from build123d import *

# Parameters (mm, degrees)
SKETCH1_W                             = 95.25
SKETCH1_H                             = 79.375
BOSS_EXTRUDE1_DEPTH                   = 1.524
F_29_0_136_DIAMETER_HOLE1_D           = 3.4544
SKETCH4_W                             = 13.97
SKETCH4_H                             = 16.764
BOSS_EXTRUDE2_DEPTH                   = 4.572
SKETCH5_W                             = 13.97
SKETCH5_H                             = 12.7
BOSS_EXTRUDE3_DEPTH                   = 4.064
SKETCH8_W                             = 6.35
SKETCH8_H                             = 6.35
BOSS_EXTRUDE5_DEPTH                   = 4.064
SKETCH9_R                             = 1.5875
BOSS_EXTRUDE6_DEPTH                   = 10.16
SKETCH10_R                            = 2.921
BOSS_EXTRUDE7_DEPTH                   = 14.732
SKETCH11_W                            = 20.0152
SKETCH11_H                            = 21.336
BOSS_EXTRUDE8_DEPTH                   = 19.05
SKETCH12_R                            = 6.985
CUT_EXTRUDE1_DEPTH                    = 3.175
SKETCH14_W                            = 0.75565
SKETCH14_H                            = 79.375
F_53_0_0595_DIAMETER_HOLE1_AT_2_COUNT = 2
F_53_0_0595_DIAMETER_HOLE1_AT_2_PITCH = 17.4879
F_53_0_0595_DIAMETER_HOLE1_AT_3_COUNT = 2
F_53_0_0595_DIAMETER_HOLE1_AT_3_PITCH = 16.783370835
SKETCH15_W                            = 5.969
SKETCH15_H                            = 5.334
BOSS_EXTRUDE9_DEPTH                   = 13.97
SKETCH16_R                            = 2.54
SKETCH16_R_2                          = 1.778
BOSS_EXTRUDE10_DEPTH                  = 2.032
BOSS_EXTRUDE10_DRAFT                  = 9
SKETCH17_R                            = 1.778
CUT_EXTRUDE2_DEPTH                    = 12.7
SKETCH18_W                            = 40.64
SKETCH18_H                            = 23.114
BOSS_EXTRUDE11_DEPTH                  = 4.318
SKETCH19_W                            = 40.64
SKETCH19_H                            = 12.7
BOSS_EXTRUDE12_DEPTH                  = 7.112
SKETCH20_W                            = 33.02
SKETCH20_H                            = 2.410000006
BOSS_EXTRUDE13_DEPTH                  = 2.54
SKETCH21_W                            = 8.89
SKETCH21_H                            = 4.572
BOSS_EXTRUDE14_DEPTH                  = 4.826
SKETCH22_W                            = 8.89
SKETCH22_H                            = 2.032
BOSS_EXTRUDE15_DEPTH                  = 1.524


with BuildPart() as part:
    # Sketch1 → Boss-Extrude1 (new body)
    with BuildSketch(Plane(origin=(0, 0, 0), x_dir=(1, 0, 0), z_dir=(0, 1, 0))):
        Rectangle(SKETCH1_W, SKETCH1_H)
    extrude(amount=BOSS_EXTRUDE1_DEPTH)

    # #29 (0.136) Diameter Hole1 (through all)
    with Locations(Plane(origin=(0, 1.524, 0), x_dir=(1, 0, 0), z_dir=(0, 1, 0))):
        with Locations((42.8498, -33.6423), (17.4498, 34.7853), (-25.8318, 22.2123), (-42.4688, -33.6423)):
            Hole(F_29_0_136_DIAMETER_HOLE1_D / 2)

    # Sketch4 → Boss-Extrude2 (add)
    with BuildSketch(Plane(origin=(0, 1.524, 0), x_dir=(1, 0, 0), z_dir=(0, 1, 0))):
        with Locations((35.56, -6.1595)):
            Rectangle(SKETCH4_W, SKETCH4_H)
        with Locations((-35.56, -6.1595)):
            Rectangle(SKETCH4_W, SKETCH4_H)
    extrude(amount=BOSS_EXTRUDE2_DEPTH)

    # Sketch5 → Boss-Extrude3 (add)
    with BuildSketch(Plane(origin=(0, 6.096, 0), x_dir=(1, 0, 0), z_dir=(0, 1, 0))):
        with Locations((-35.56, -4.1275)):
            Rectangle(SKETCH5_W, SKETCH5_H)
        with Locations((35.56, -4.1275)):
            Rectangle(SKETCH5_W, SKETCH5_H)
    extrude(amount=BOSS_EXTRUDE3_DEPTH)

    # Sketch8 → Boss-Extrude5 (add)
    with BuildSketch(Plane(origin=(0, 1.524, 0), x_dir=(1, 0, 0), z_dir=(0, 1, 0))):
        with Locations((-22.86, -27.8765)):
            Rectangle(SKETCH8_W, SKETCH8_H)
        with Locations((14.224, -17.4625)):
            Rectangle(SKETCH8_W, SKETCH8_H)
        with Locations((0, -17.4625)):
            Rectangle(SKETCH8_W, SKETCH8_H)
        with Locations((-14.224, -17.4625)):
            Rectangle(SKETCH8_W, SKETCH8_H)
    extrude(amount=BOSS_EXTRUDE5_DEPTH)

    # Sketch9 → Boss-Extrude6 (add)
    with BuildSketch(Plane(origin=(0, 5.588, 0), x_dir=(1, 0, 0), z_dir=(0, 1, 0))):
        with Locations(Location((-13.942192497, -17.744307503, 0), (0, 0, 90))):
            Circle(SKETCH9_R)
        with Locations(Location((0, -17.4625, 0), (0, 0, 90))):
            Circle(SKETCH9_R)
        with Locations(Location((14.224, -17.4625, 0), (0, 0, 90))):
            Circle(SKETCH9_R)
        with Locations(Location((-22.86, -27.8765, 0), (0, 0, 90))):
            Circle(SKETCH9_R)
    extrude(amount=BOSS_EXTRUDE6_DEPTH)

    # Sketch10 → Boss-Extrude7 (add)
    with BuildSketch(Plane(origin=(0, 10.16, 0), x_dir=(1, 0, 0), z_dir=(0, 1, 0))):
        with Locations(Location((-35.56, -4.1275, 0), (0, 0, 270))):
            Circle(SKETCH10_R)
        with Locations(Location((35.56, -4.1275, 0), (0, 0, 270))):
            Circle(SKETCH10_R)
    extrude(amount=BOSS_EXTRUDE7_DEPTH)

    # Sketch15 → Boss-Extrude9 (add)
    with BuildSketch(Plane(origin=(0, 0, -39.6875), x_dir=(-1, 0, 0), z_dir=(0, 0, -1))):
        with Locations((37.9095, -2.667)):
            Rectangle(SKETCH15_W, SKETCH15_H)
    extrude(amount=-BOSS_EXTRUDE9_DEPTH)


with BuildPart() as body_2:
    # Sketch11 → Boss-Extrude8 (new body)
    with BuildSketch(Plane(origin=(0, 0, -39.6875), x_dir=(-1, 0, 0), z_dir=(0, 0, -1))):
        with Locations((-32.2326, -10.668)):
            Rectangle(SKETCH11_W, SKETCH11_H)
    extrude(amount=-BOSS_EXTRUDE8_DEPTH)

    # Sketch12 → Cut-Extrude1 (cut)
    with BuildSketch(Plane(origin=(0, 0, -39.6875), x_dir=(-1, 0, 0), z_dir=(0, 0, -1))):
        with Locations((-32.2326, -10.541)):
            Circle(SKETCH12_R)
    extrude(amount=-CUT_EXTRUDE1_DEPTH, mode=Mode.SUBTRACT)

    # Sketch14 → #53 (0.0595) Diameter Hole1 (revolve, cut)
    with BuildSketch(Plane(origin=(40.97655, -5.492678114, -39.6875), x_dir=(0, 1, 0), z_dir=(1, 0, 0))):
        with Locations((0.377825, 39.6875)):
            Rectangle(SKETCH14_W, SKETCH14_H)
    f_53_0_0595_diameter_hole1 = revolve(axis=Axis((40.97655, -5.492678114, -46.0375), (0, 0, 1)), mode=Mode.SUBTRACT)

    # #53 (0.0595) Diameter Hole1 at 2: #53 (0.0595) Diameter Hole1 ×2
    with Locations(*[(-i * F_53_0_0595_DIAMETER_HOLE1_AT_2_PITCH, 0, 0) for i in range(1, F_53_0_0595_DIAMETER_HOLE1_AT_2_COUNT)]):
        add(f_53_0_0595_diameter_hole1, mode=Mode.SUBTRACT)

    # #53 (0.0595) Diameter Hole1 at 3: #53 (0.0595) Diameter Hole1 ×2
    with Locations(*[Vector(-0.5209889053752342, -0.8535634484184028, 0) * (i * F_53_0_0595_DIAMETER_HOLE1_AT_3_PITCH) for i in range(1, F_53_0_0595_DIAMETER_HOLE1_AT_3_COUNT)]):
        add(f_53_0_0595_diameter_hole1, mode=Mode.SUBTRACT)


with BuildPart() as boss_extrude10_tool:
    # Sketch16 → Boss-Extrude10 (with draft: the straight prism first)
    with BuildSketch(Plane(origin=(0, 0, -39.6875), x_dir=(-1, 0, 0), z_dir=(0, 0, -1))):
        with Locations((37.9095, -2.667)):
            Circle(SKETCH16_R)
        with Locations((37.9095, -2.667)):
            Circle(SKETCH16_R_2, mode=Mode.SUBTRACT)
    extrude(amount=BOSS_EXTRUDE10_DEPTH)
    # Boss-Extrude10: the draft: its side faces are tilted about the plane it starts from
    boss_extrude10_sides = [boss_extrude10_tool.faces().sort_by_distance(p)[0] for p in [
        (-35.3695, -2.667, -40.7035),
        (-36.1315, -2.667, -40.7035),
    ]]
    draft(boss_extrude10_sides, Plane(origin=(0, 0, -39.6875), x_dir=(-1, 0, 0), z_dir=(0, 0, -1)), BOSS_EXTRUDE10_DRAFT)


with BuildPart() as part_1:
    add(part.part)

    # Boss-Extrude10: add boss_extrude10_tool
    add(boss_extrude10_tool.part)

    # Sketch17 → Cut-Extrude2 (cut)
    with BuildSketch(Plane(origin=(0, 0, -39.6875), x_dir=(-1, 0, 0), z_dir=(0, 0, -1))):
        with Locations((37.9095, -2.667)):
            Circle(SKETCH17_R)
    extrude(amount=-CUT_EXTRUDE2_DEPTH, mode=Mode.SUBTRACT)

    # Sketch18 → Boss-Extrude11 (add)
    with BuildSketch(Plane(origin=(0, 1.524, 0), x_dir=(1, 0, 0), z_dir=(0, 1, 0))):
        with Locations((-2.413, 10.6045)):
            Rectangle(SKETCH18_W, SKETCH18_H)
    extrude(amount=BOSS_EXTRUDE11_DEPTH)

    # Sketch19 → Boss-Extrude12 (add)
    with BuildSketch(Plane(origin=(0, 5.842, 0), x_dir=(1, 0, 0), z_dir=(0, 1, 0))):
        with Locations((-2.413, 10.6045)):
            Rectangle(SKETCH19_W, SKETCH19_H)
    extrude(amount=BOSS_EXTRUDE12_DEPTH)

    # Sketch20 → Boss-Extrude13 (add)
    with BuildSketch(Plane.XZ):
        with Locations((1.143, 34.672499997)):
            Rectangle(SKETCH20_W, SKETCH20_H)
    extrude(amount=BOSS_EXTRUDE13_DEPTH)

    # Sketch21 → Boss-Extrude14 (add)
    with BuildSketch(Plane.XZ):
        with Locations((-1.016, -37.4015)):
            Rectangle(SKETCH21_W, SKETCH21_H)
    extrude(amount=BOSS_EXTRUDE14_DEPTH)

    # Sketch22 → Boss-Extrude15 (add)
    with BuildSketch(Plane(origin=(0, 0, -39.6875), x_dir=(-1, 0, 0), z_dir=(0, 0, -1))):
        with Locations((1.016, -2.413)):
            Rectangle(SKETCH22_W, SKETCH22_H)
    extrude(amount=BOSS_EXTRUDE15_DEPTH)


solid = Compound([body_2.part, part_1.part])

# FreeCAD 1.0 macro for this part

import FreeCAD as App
import Part
import Sketcher
from FreeCAD import Vector
Q = App.Units.Quantity


def faces_at(feature, points):
    """Names of the faces that lie closest to the given points."""
    faces = feature.Shape.Faces
    near = lambda p: min(range(len(faces)), key=lambda i: faces[i].distToShape(Part.Vertex(*p))[0])
    return sorted({f"Face{near(p) + 1}" for p in points})

doc = App.newDocument("Part")
body = doc.addObject("PartDesign::Body", "Body")

sketch1 = doc.addObject("Sketcher::SketchObject", "Sketch")
body.addObject(sketch1)
sketch1.AttachmentSupport = (doc.XZ_Plane, [""])
sketch1.MapMode = "FlatFace"
sketch1.addGeometry(Part.LineSegment(Vector(-47.625, -39.6875, 0), Vector(-47.625, 39.6875, 0)), False)
sketch1.addGeometry(Part.LineSegment(Vector(-47.625, 39.6875, 0), Vector(47.625, 39.6875, 0)), False)
sketch1.addGeometry(Part.LineSegment(Vector(47.625, 39.6875, 0), Vector(47.625, -39.6875, 0)), False)
sketch1.addGeometry(Part.LineSegment(Vector(47.625, -39.6875, 0), Vector(-47.625, -39.6875, 0)), False)
sketch1.addConstraint(Sketcher.Constraint("Coincident", 0, 2, 1, 1))
sketch1.addConstraint(Sketcher.Constraint("Coincident", 1, 2, 2, 1))
sketch1.addConstraint(Sketcher.Constraint("Coincident", 2, 2, 3, 1))
sketch1.addConstraint(Sketcher.Constraint("Coincident", 3, 2, 0, 1))
sketch1.addConstraint(Sketcher.Constraint("Vertical", 0))
sketch1.addConstraint(Sketcher.Constraint("Horizontal", 1))
sketch1.addConstraint(Sketcher.Constraint("Vertical", 2))
sketch1.addConstraint(Sketcher.Constraint("Horizontal", 3))
sketch1.addConstraint(Sketcher.Constraint("Symmetric", 0, 2, 2, 2, -1, 1))
sketch1.addConstraint(Sketcher.Constraint("DistanceX", 1, 1, 1, 2, Q("3.75 in")))
sketch1.addConstraint(Sketcher.Constraint("DistanceY", 0, 1, 0, 2, Q("3.125 in")))
pad1 = doc.addObject("PartDesign::Pad", "Pad")
body.addObject(pad1)
pad1.Profile = sketch1
pad1.Length = Q("0.06 in")
pad1.Reversed = True

sketch2 = doc.addObject("Sketcher::SketchObject", "Sketch001")
body.addObject(sketch2)
sketch2.AttachmentSupport = (doc.XZ_Plane, [""])
sketch2.MapMode = "FlatFace"
sketch2.AttachmentOffset = App.Placement(Vector(0, 0, -0.06 * 25.4), App.Rotation())
sketch2.addGeometry(Part.Circle(Vector(42.8498, 33.6423, 0), Vector(0, 0, 1), 1.7272), False)
sketch2.addGeometry(Part.Circle(Vector(17.4498, -34.7853, 0), Vector(0, 0, 1), 1.7272), False)
sketch2.addGeometry(Part.Circle(Vector(-25.8318, -22.2123, 0), Vector(0, 0, 1), 1.7272), False)
sketch2.addGeometry(Part.Circle(Vector(-42.4688, 33.6423, 0), Vector(0, 0, 1), 1.7272), False)
sketch2.addConstraint(Sketcher.Constraint("Equal", 0, 1))
sketch2.addConstraint(Sketcher.Constraint("Equal", 1, 2))
sketch2.addConstraint(Sketcher.Constraint("Equal", 2, 3))
sketch2.addConstraint(Sketcher.Constraint("Horizontal", 0, 3, 3, 3))
sketch2.addConstraint(Sketcher.Constraint("Diameter", 0, Q("0.136 in")))
sketch2.addConstraint(Sketcher.Constraint("DistanceX", 1, 3, 0, 3, Q("1 in")))
sketch2.addConstraint(Sketcher.Constraint("DistanceX", -1, 1, 0, 3, Q("1.687 in")))
sketch2.addConstraint(Sketcher.Constraint("DistanceX", 2, 3, -1, 1, Q("1.017 in")))
sketch2.addConstraint(Sketcher.Constraint("DistanceX", 3, 3, -1, 1, Q("1.672 in")))
sketch2.addConstraint(Sketcher.Constraint("DistanceY", 1, 3, 0, 3, Q("2.694 in")))
sketch2.addConstraint(Sketcher.Constraint("DistanceY", 1, 3, 2, 3, Q("0.495 in")))
sketch2.addConstraint(Sketcher.Constraint("DistanceY", -1, 1, 0, 3, Q("1.3245 in")))
doc.recompute()
hole = doc.addObject("PartDesign::Hole", "Hole")
body.addObject(hole)
hole.Profile = sketch2
hole.ThreadType = "None"
hole.Diameter = Q("0.136 in")
hole.DepthType = "ThroughAll"
hole.Reversed = True

sketch3 = doc.addObject("Sketcher::SketchObject", "Sketch002")
body.addObject(sketch3)
sketch3.AttachmentSupport = (doc.XZ_Plane, [""])
sketch3.MapMode = "FlatFace"
sketch3.AttachmentOffset = App.Placement(Vector(0, 0, -0.06 * 25.4), App.Rotation())
sketch3.addGeometry(Part.LineSegment(Vector(28.575, -2.2225, 0), Vector(28.575, 14.5415, 0)), False)
sketch3.addGeometry(Part.LineSegment(Vector(28.575, 14.5415, 0), Vector(42.545, 14.5415, 0)), False)
sketch3.addGeometry(Part.LineSegment(Vector(42.545, 14.5415, 0), Vector(42.545, -2.2225, 0)), False)
sketch3.addGeometry(Part.LineSegment(Vector(42.545, -2.2225, 0), Vector(28.575, -2.2225, 0)), False)
sketch3.addGeometry(Part.LineSegment(Vector(-42.545, -2.2225, 0), Vector(-42.545, 14.5415, 0)), False)
sketch3.addGeometry(Part.LineSegment(Vector(-42.545, 14.5415, 0), Vector(-28.575, 14.5415, 0)), False)
sketch3.addGeometry(Part.LineSegment(Vector(-28.575, 14.5415, 0), Vector(-28.575, -2.2225, 0)), False)
sketch3.addGeometry(Part.LineSegment(Vector(-28.575, -2.2225, 0), Vector(-42.545, -2.2225, 0)), False)
sketch3.addConstraint(Sketcher.Constraint("Coincident", 0, 2, 1, 1))
sketch3.addConstraint(Sketcher.Constraint("Coincident", 1, 2, 2, 1))
sketch3.addConstraint(Sketcher.Constraint("Coincident", 2, 2, 3, 1))
sketch3.addConstraint(Sketcher.Constraint("Coincident", 3, 2, 0, 1))
sketch3.addConstraint(Sketcher.Constraint("Coincident", 4, 2, 5, 1))
sketch3.addConstraint(Sketcher.Constraint("Coincident", 5, 2, 6, 1))
sketch3.addConstraint(Sketcher.Constraint("Coincident", 6, 2, 7, 1))
sketch3.addConstraint(Sketcher.Constraint("Coincident", 7, 2, 4, 1))
sketch3.addConstraint(Sketcher.Constraint("Vertical", 0))
sketch3.addConstraint(Sketcher.Constraint("Horizontal", 1))
sketch3.addConstraint(Sketcher.Constraint("Vertical", 2))
sketch3.addConstraint(Sketcher.Constraint("Horizontal", 3))
sketch3.addConstraint(Sketcher.Constraint("Vertical", 4))
sketch3.addConstraint(Sketcher.Constraint("Horizontal", 5))
sketch3.addConstraint(Sketcher.Constraint("Vertical", 6))
sketch3.addConstraint(Sketcher.Constraint("Horizontal", 7))
sketch3.addConstraint(Sketcher.Constraint("Symmetric", 1, 2, 4, 2, -2))
sketch3.addConstraint(Sketcher.Constraint("Symmetric", 3, 2, 6, 2, -2))
sketch3.addConstraint(Sketcher.Constraint("DistanceX", 1, 1, 1, 2, Q("0.55 in")))
sketch3.addConstraint(Sketcher.Constraint("DistanceY", 0, 1, 0, 2, Q("0.66 in")))
sketch3.addConstraint(Sketcher.Constraint("DistanceX", 4, 2, 0, 2, Q("2.8 in")))
sketch3.addConstraint(Sketcher.Constraint("DistanceY", -1, 1, 0, 2, Q("0.5725 in")))
pad2 = doc.addObject("PartDesign::Pad", "Pad001")
body.addObject(pad2)
pad2.Profile = sketch3
pad2.Length = Q("0.18 in")
pad2.Reversed = True

sketch4 = doc.addObject("Sketcher::SketchObject", "Sketch003")
body.addObject(sketch4)
sketch4.AttachmentSupport = (doc.XZ_Plane, [""])
sketch4.MapMode = "FlatFace"
sketch4.AttachmentOffset = App.Placement(Vector(0, 0, -0.24 * 25.4), App.Rotation())
sketch4.addGeometry(Part.LineSegment(Vector(-42.545, -2.2225, 0), Vector(-42.545, 10.4775, 0)), False)
sketch4.addGeometry(Part.LineSegment(Vector(-42.545, 10.4775, 0), Vector(-28.575, 10.4775, 0)), False)
sketch4.addGeometry(Part.LineSegment(Vector(-28.575, 10.4775, 0), Vector(-28.575, -2.2225, 0)), False)
sketch4.addGeometry(Part.LineSegment(Vector(-28.575, -2.2225, 0), Vector(-42.545, -2.2225, 0)), False)
sketch4.addGeometry(Part.LineSegment(Vector(28.575, -2.2225, 0), Vector(28.575, 10.4775, 0)), False)
sketch4.addGeometry(Part.LineSegment(Vector(28.575, 10.4775, 0), Vector(42.545, 10.4775, 0)), False)
sketch4.addGeometry(Part.LineSegment(Vector(42.545, 10.4775, 0), Vector(42.545, -2.2225, 0)), False)
sketch4.addGeometry(Part.LineSegment(Vector(42.545, -2.2225, 0), Vector(28.575, -2.2225, 0)), False)
sketch4.addConstraint(Sketcher.Constraint("Coincident", 0, 2, 1, 1))
sketch4.addConstraint(Sketcher.Constraint("Coincident", 1, 2, 2, 1))
sketch4.addConstraint(Sketcher.Constraint("Coincident", 2, 2, 3, 1))
sketch4.addConstraint(Sketcher.Constraint("Coincident", 3, 2, 0, 1))
sketch4.addConstraint(Sketcher.Constraint("Coincident", 4, 2, 5, 1))
sketch4.addConstraint(Sketcher.Constraint("Coincident", 5, 2, 6, 1))
sketch4.addConstraint(Sketcher.Constraint("Coincident", 6, 2, 7, 1))
sketch4.addConstraint(Sketcher.Constraint("Coincident", 7, 2, 4, 1))
sketch4.addConstraint(Sketcher.Constraint("Vertical", 0))
sketch4.addConstraint(Sketcher.Constraint("Horizontal", 1))
sketch4.addConstraint(Sketcher.Constraint("Vertical", 2))
sketch4.addConstraint(Sketcher.Constraint("Horizontal", 3))
sketch4.addConstraint(Sketcher.Constraint("Vertical", 4))
sketch4.addConstraint(Sketcher.Constraint("Horizontal", 5))
sketch4.addConstraint(Sketcher.Constraint("Vertical", 6))
sketch4.addConstraint(Sketcher.Constraint("Horizontal", 7))
sketch4.addConstraint(Sketcher.Constraint("Symmetric", 1, 2, 4, 2, -2))
sketch4.addConstraint(Sketcher.Constraint("Symmetric", 3, 2, 6, 2, -2))
sketch4.addConstraint(Sketcher.Constraint("DistanceY", 0, 1, 0, 2, Q("0.5 in")))
sketch4.addConstraint(Sketcher.Constraint("DistanceX", 1, 1, 1, 2, Q("0.55 in")))
sketch4.addConstraint(Sketcher.Constraint("DistanceX", 0, 2, 4, 2, Q("2.8 in")))
sketch4.addConstraint(Sketcher.Constraint("DistanceY", -1, 1, 0, 2, Q("0.4125 in")))
pad3 = doc.addObject("PartDesign::Pad", "Pad002")
body.addObject(pad3)
pad3.Profile = sketch4
pad3.Length = Q("0.16 in")
pad3.Reversed = True

sketch5 = doc.addObject("Sketcher::SketchObject", "Sketch004")
body.addObject(sketch5)
sketch5.AttachmentSupport = (doc.XZ_Plane, [""])
sketch5.MapMode = "FlatFace"
sketch5.AttachmentOffset = App.Placement(Vector(0, 0, -0.06 * 25.4), App.Rotation())
sketch5.addGeometry(Part.LineSegment(Vector(-26.035, 24.7015, 0), Vector(-26.035, 31.0515, 0)), False)
sketch5.addGeometry(Part.LineSegment(Vector(-26.035, 31.0515, 0), Vector(-19.685, 31.0515, 0)), False)
sketch5.addGeometry(Part.LineSegment(Vector(-19.685, 31.0515, 0), Vector(-19.685, 24.7015, 0)), False)
sketch5.addGeometry(Part.LineSegment(Vector(-19.685, 24.7015, 0), Vector(-26.035, 24.7015, 0)), False)
sketch5.addGeometry(Part.LineSegment(Vector(11.049, 14.2875, 0), Vector(11.049, 20.6375, 0)), False)
sketch5.addGeometry(Part.LineSegment(Vector(11.049, 20.6375, 0), Vector(17.399, 20.6375, 0)), False)
sketch5.addGeometry(Part.LineSegment(Vector(17.399, 20.6375, 0), Vector(17.399, 14.2875, 0)), False)
sketch5.addGeometry(Part.LineSegment(Vector(17.399, 14.2875, 0), Vector(11.049, 14.2875, 0)), False)
sketch5.addGeometry(Part.LineSegment(Vector(-3.175, 14.2875, 0), Vector(-3.175, 20.6375, 0)), False)
sketch5.addGeometry(Part.LineSegment(Vector(-3.175, 20.6375, 0), Vector(3.175, 20.6375, 0)), False)
sketch5.addGeometry(Part.LineSegment(Vector(3.175, 20.6375, 0), Vector(3.175, 14.2875, 0)), False)
sketch5.addGeometry(Part.LineSegment(Vector(3.175, 14.2875, 0), Vector(-3.175, 14.2875, 0)), False)
sketch5.addGeometry(Part.LineSegment(Vector(-17.399, 14.2875, 0), Vector(-17.399, 20.6375, 0)), False)
sketch5.addGeometry(Part.LineSegment(Vector(-17.399, 20.6375, 0), Vector(-11.049, 20.6375, 0)), False)
sketch5.addGeometry(Part.LineSegment(Vector(-11.049, 20.6375, 0), Vector(-11.049, 14.2875, 0)), False)
sketch5.addGeometry(Part.LineSegment(Vector(-11.049, 14.2875, 0), Vector(-17.399, 14.2875, 0)), False)
sketch5.addConstraint(Sketcher.Constraint("Coincident", 0, 2, 1, 1))
sketch5.addConstraint(Sketcher.Constraint("Coincident", 1, 2, 2, 1))
sketch5.addConstraint(Sketcher.Constraint("Coincident", 2, 2, 3, 1))
sketch5.addConstraint(Sketcher.Constraint("Coincident", 3, 2, 0, 1))
sketch5.addConstraint(Sketcher.Constraint("Coincident", 4, 2, 5, 1))
sketch5.addConstraint(Sketcher.Constraint("Coincident", 5, 2, 6, 1))
sketch5.addConstraint(Sketcher.Constraint("Coincident", 6, 2, 7, 1))
sketch5.addConstraint(Sketcher.Constraint("Coincident", 7, 2, 4, 1))
sketch5.addConstraint(Sketcher.Constraint("Coincident", 8, 2, 9, 1))
sketch5.addConstraint(Sketcher.Constraint("Coincident", 9, 2, 10, 1))
sketch5.addConstraint(Sketcher.Constraint("Coincident", 10, 2, 11, 1))
sketch5.addConstraint(Sketcher.Constraint("Coincident", 11, 2, 8, 1))
sketch5.addConstraint(Sketcher.Constraint("Coincident", 12, 2, 13, 1))
sketch5.addConstraint(Sketcher.Constraint("Coincident", 13, 2, 14, 1))
sketch5.addConstraint(Sketcher.Constraint("Coincident", 14, 2, 15, 1))
sketch5.addConstraint(Sketcher.Constraint("Coincident", 15, 2, 12, 1))
sketch5.addConstraint(Sketcher.Constraint("Vertical", 0))
sketch5.addConstraint(Sketcher.Constraint("Horizontal", 1))
sketch5.addConstraint(Sketcher.Constraint("Vertical", 2))
sketch5.addConstraint(Sketcher.Constraint("Horizontal", 3))
sketch5.addConstraint(Sketcher.Constraint("Vertical", 4))
sketch5.addConstraint(Sketcher.Constraint("Horizontal", 5))
sketch5.addConstraint(Sketcher.Constraint("Vertical", 6))
sketch5.addConstraint(Sketcher.Constraint("Horizontal", 7))
sketch5.addConstraint(Sketcher.Constraint("Vertical", 8))
sketch5.addConstraint(Sketcher.Constraint("Horizontal", 9))
sketch5.addConstraint(Sketcher.Constraint("Vertical", 10))
sketch5.addConstraint(Sketcher.Constraint("Horizontal", 11))
sketch5.addConstraint(Sketcher.Constraint("Vertical", 12))
sketch5.addConstraint(Sketcher.Constraint("Horizontal", 13))
sketch5.addConstraint(Sketcher.Constraint("Vertical", 14))
sketch5.addConstraint(Sketcher.Constraint("Horizontal", 15))
sketch5.addConstraint(Sketcher.Constraint("Symmetric", 5, 2, 12, 2, -2))
sketch5.addConstraint(Sketcher.Constraint("Symmetric", 7, 2, 14, 2, -2))
sketch5.addConstraint(Sketcher.Constraint("Horizontal", 5, 2, 8, 2))
sketch5.addConstraint(Sketcher.Constraint("Horizontal", 7, 2, 10, 2))
sketch5.addConstraint(Sketcher.Constraint("Equal", 3, 5))
sketch5.addConstraint(Sketcher.Constraint("Equal", 7, 9))
sketch5.addConstraint(Sketcher.Constraint("Equal", 15, 0))
sketch5.addConstraint(Sketcher.Constraint("Equal", 2, 4))
sketch5.addConstraint(Sketcher.Constraint("DistanceX", 1, 1, 1, 2, Q("0.25 in")))
sketch5.addConstraint(Sketcher.Constraint("DistanceX", 2, 2, 4, 2, Q("1.21 in")))
sketch5.addConstraint(Sketcher.Constraint("DistanceY", 4, 2, 2, 2, Q("0.16 in")))
sketch5.addConstraint(Sketcher.Constraint("DistanceX", 8, 2, 4, 2, Q("0.56 in")))
sketch5.addConstraint(Sketcher.Constraint("DistanceX", 2, 2, 12, 2, Q("0.09 in")))
sketch5.addConstraint(Sketcher.Constraint("DistanceY", -1, 1, 4, 2, Q("0.8125 in")))
pad4 = doc.addObject("PartDesign::Pad", "Pad003")
body.addObject(pad4)
pad4.Profile = sketch5
pad4.Length = Q("0.16 in")
pad4.Reversed = True

sketch6 = doc.addObject("Sketcher::SketchObject", "Sketch005")
body.addObject(sketch6)
sketch6.AttachmentSupport = (doc.XZ_Plane, [""])
sketch6.MapMode = "FlatFace"
sketch6.AttachmentOffset = App.Placement(Vector(0, 0, -0.22 * 25.4), App.Rotation())
sketch6.addGeometry(Part.Circle(Vector(-13.942192, 17.744308, 0), Vector(0, 0, 1), 1.5875), False)
sketch6.addGeometry(Part.Circle(Vector(0, 17.4625, 0), Vector(0, 0, 1), 1.5875), False)
sketch6.addGeometry(Part.Circle(Vector(14.224, 17.4625, 0), Vector(0, 0, 1), 1.5875), False)
sketch6.addGeometry(Part.Circle(Vector(-22.86, 27.8765, 0), Vector(0, 0, 1), 1.5875), False)
sketch6.addConstraint(Sketcher.Constraint("Equal", 0, 1))
sketch6.addConstraint(Sketcher.Constraint("Equal", 1, 2))
sketch6.addConstraint(Sketcher.Constraint("Equal", 2, 3))
sketch6.addConstraint(Sketcher.Constraint("PointOnObject", 1, 3, -2))
sketch6.addConstraint(Sketcher.Constraint("Horizontal", 1, 3, 2, 3))
sketch6.addConstraint(Sketcher.Constraint("Diameter", 0, Q("0.125 in")))
sketch6.addConstraint(Sketcher.Constraint("DistanceX", 3, 3, -1, 1, Q("0.9 in")))
sketch6.addConstraint(Sketcher.Constraint("DistanceX", -1, 1, 2, 3, Q("0.56 in")))
sketch6.addConstraint(Sketcher.Constraint("DistanceY", 1, 3, 3, 3, Q("0.41 in")))
sketch6.addConstraint(Sketcher.Constraint("DistanceY", -1, 1, 1, 3, Q("0.6875 in")))
sketch6.addConstraint(Sketcher.Constraint("DistanceX", 0, 3, -1, 1, Q("13.942192 mm")))
sketch6.addConstraint(Sketcher.Constraint("DistanceY", -1, 1, 0, 3, Q("17.744308 mm")))
pad5 = doc.addObject("PartDesign::Pad", "Pad004")
body.addObject(pad5)
pad5.Profile = sketch6
pad5.Length = Q("0.4 in")
pad5.Reversed = True

sketch7 = doc.addObject("Sketcher::SketchObject", "Sketch006")
body.addObject(sketch7)
sketch7.AttachmentSupport = (doc.XZ_Plane, [""])
sketch7.MapMode = "FlatFace"
sketch7.AttachmentOffset = App.Placement(Vector(0, 0, -0.4 * 25.4), App.Rotation())
sketch7.addGeometry(Part.Circle(Vector(-35.56, 4.1275, 0), Vector(0, 0, 1), 2.921), False)
sketch7.addGeometry(Part.Circle(Vector(35.56, 4.1275, 0), Vector(0, 0, 1), 2.921), False)
sketch7.addConstraint(Sketcher.Constraint("Equal", 0, 1))
sketch7.addConstraint(Sketcher.Constraint("Symmetric", 0, 3, 1, 3, -2))
sketch7.addConstraint(Sketcher.Constraint("Diameter", 0, Q("0.23 in")))
sketch7.addConstraint(Sketcher.Constraint("DistanceX", 0, 3, -1, 1, Q("1.4 in")))
sketch7.addConstraint(Sketcher.Constraint("DistanceY", -1, 1, 0, 3, Q("0.1625 in")))
pad6 = doc.addObject("PartDesign::Pad", "Pad005")
body.addObject(pad6)
pad6.Profile = sketch7
pad6.Length = Q("0.58 in")
pad6.Reversed = True

sketch8 = doc.addObject("Sketcher::SketchObject", "Sketch007")
body.addObject(sketch8)
sketch8.AttachmentSupport = (doc.XY_Plane, [""])
sketch8.MapMode = "FlatFace"
sketch8.AttachmentOffset = App.Placement(Vector(0, 0, -1.5625 * 25.4), App.Rotation())
sketch8.addGeometry(Part.LineSegment(Vector(-34.925, 0, 0), Vector(-34.925, -5.334, 0)), False)
sketch8.addGeometry(Part.LineSegment(Vector(-34.925, -5.334, 0), Vector(-40.894, -5.334, 0)), False)
sketch8.addGeometry(Part.LineSegment(Vector(-40.894, -5.334, 0), Vector(-40.894, 0, 0)), False)
sketch8.addGeometry(Part.LineSegment(Vector(-40.894, 0, 0), Vector(-34.925, 0, 0)), False)
sketch8.addConstraint(Sketcher.Constraint("Coincident", 0, 2, 1, 1))
sketch8.addConstraint(Sketcher.Constraint("Coincident", 1, 2, 2, 1))
sketch8.addConstraint(Sketcher.Constraint("Coincident", 2, 2, 3, 1))
sketch8.addConstraint(Sketcher.Constraint("Coincident", 3, 2, 0, 1))
sketch8.addConstraint(Sketcher.Constraint("Vertical", 0))
sketch8.addConstraint(Sketcher.Constraint("Horizontal", 1))
sketch8.addConstraint(Sketcher.Constraint("Vertical", 2))
sketch8.addConstraint(Sketcher.Constraint("Horizontal", 3))
sketch8.addConstraint(Sketcher.Constraint("PointOnObject", 2, 2, -1))
sketch8.addConstraint(Sketcher.Constraint("DistanceY", 0, 2, 0, 1, Q("0.21 in")))
sketch8.addConstraint(Sketcher.Constraint("DistanceX", 1, 2, 1, 1, Q("0.235 in")))
sketch8.addConstraint(Sketcher.Constraint("DistanceX", 1, 2, -1, 1, Q("1.61 in")))
pad7 = doc.addObject("PartDesign::Pad", "Pad006")
body.addObject(pad7)
pad7.Profile = sketch8
pad7.Length = Q("0.55 in")
body2 = doc.addObject("PartDesign::Body", "Body001")

sketch9 = doc.addObject("Sketcher::SketchObject", "Sketch008")
body2.addObject(sketch9)
sketch9.AttachmentSupport = (doc.getObject("XY_Plane001"), [""])
sketch9.MapMode = "FlatFace"
sketch9.AttachmentOffset = App.Placement(Vector(0, 0, -1.5625 * 25.4), App.Rotation())
sketch9.addGeometry(Part.LineSegment(Vector(42.2402, 0, 0), Vector(42.2402, -21.336, 0)), False)
sketch9.addGeometry(Part.LineSegment(Vector(42.2402, -21.336, 0), Vector(22.225, -21.336, 0)), False)
sketch9.addGeometry(Part.LineSegment(Vector(22.225, -21.336, 0), Vector(22.225, 0, 0)), False)
sketch9.addGeometry(Part.LineSegment(Vector(22.225, 0, 0), Vector(42.2402, 0, 0)), False)
sketch9.addConstraint(Sketcher.Constraint("Coincident", 0, 2, 1, 1))
sketch9.addConstraint(Sketcher.Constraint("Coincident", 1, 2, 2, 1))
sketch9.addConstraint(Sketcher.Constraint("Coincident", 2, 2, 3, 1))
sketch9.addConstraint(Sketcher.Constraint("Coincident", 3, 2, 0, 1))
sketch9.addConstraint(Sketcher.Constraint("Vertical", 0))
sketch9.addConstraint(Sketcher.Constraint("Horizontal", 1))
sketch9.addConstraint(Sketcher.Constraint("Vertical", 2))
sketch9.addConstraint(Sketcher.Constraint("Horizontal", 3))
sketch9.addConstraint(Sketcher.Constraint("PointOnObject", 2, 2, -1))
sketch9.addConstraint(Sketcher.Constraint("DistanceY", 0, 2, 0, 1, Q("0.84 in")))
sketch9.addConstraint(Sketcher.Constraint("DistanceX", 1, 2, 1, 1, Q("0.788 in")))
sketch9.addConstraint(Sketcher.Constraint("DistanceX", -1, 1, 0, 2, Q("1.663 in")))
pad8 = doc.addObject("PartDesign::Pad", "Pad007")
body2.addObject(pad8)
pad8.Profile = sketch9
pad8.Length = Q("0.75 in")

sketch10 = doc.addObject("Sketcher::SketchObject", "Sketch009")
body2.addObject(sketch10)
sketch10.AttachmentSupport = (doc.getObject("XY_Plane001"), [""])
sketch10.MapMode = "FlatFace"
sketch10.AttachmentOffset = App.Placement(Vector(0, 0, -1.5625 * 25.4), App.Rotation())
sketch10.addGeometry(Part.Circle(Vector(32.2326, -10.541, 0), Vector(0, 0, 1), 6.985), False)
sketch10.addConstraint(Sketcher.Constraint("Diameter", 0, Q("0.55 in")))
sketch10.addConstraint(Sketcher.Constraint("DistanceX", -1, 1, 0, 3, Q("1.269 in")))
sketch10.addConstraint(Sketcher.Constraint("DistanceY", 0, 3, -1, 1, Q("0.415 in")))
pocket1 = doc.addObject("PartDesign::Pocket", "Pocket")
body2.addObject(pocket1)
pocket1.Profile = sketch10
pocket1.Length = Q("0.125 in")
pocket1.Reversed = True

sketch11 = doc.addObject("Sketcher::SketchObject", "Sketch010")
body2.addObject(sketch11)
sketch11.AttachmentSupport = (doc.getObject("YZ_Plane001"), [""])
sketch11.MapMode = "FlatFace"
sketch11.AttachmentOffset = App.Placement(Vector(0, 0, 40.97655), App.Rotation())
sketch11.addGeometry(Part.LineSegment(Vector(-5.492678, 39.6875, 0), Vector(-5.492678, -39.6875, 0)), False)
sketch11.addGeometry(Part.LineSegment(Vector(-5.492678, -39.6875, 0), Vector(-4.737028, -39.6875, 0)), False)
sketch11.addGeometry(Part.LineSegment(Vector(-4.737028, -39.6875, 0), Vector(-4.737028, 39.6875, 0)), False)
sketch11.addGeometry(Part.LineSegment(Vector(-4.737028, 39.6875, 0), Vector(-5.492678, 39.6875, 0)), False)
sketch11.addGeometry(Part.LineSegment(Vector(-5.492678, -39.6875, 0), Vector(-5.492678, 39.6875, 0)), True)
sketch11.addConstraint(Sketcher.Constraint("Coincident", 0, 2, 1, 1))
sketch11.addConstraint(Sketcher.Constraint("Coincident", 1, 2, 2, 1))
sketch11.addConstraint(Sketcher.Constraint("Coincident", 2, 2, 3, 1))
sketch11.addConstraint(Sketcher.Constraint("Coincident", 3, 2, 0, 1))
sketch11.addConstraint(Sketcher.Constraint("Vertical", 0))
sketch11.addConstraint(Sketcher.Constraint("Horizontal", 1))
sketch11.addConstraint(Sketcher.Constraint("Vertical", 2))
sketch11.addConstraint(Sketcher.Constraint("Horizontal", 3))
sketch11.addConstraint(Sketcher.Constraint("Vertical", 4))
sketch11.addConstraint(Sketcher.Constraint("Coincident", 4, 1, 0, 2))
sketch11.addConstraint(Sketcher.Constraint("Horizontal", 2, 2, 4, 2))
sketch11.addConstraint(Sketcher.Constraint("DistanceY", 0, 2, 0, 1, Q("3.125 in")))
sketch11.addConstraint(Sketcher.Constraint("DistanceY", 0, 2, -1, 1, Q("1.5625 in")))
sketch11.addConstraint(Sketcher.Constraint("DistanceX", 1, 1, 1, 2, Q("0.75565 mm")))
sketch11.addConstraint(Sketcher.Constraint("DistanceX", 0, 2, -1, 1, Q("5.492678 mm")))
groove = doc.addObject("PartDesign::Groove", "Groove")
body2.addObject(groove)
groove.Profile = sketch11
groove.ReferenceAxis = (sketch11, ["Axis0"])
groove.Angle = 360
doc.recompute()

linearpattern = doc.addObject("PartDesign::LinearPattern", "LinearPattern")
body2.addObject(linearpattern)
linearpattern.Originals = [groove]
linearpattern.Direction = (doc.getObject("X_Axis001"), [""])
linearpattern.Mode = "offset"
linearpattern.Offset = Q("0.6885 in")
linearpattern.Occurrences = 2
linearpattern.Reversed = True
body2.Tip = linearpattern
doc.recompute()

datumline = doc.addObject("PartDesign::Line", "DatumLine")
body2.addObject(datumline)
datumline.Placement = App.Placement(Vector(0, 0, 0), App.Rotation(Vector(0, 0, 1), Vector(-0.520988905, -0.853563448, 0)))
linearpattern2 = doc.addObject("PartDesign::LinearPattern", "LinearPattern001")
body2.addObject(linearpattern2)
linearpattern2.Originals = [groove]
linearpattern2.Direction = (datumline, [""])
linearpattern2.Mode = "offset"
linearpattern2.Offset = 16.783371
linearpattern2.Occurrences = 2
body2.Tip = linearpattern2
body3 = doc.addObject("PartDesign::Body", "Body002")

sketch12 = doc.addObject("Sketcher::SketchObject", "Sketch011")
body3.addObject(sketch12)
sketch12.AttachmentSupport = (doc.getObject("XY_Plane002"), [""])
sketch12.MapMode = "FlatFace"
sketch12.AttachmentOffset = App.Placement(Vector(0, 0, -1.5625 * 25.4), App.Rotation())
sketch12.addGeometry(Part.Circle(Vector(-37.9095, -2.667, 0), Vector(0, 0, 1), 2.54), False)
sketch12.addGeometry(Part.Circle(Vector(-37.9095, -2.667, 0), Vector(0, 0, 1), 1.778), False)
sketch12.addConstraint(Sketcher.Constraint("Coincident", 1, 3, 0, 3))
sketch12.addConstraint(Sketcher.Constraint("Diameter", 0, Q("0.2 in")))
sketch12.addConstraint(Sketcher.Constraint("Diameter", 1, Q("0.14 in")))
sketch12.addConstraint(Sketcher.Constraint("DistanceY", 0, 3, -1, 1, Q("0.105 in")))
sketch12.addConstraint(Sketcher.Constraint("DistanceX", 0, 3, -1, 1, Q("1.4925 in")))
pad9 = doc.addObject("PartDesign::Pad", "Pad008")
body3.addObject(pad9)
pad9.Profile = sketch12
pad9.Length = Q("0.08 in")
pad9.Reversed = True
doc.recompute()

datumplane = doc.addObject("PartDesign::Plane", "DatumPlane")
body3.addObject(datumplane)
datumplane.AttachmentSupport = (doc.getObject("XY_Plane002"), [""])
datumplane.MapMode = "FlatFace"
datumplane.AttachmentOffset = App.Placement(Vector(0, 0, -1.5625 * 25.4), App.Rotation())
draft = doc.addObject("PartDesign::Draft", "Draft")
body3.addObject(draft)
draft.Base = (pad9, faces_at(pad9, [(-35.37, -2.667, -40.703), (-36.132, -2.667, -40.703)]))
draft.NeutralPlane = (datumplane, [""])
draft.Angle = 9
draft.Reversed = True
doc.recompute()

boolean = doc.addObject("PartDesign::Boolean", "Boolean")
body.addObject(boolean)
boolean.Type = "Fuse"
boolean.addObjects([body3])

sketch13 = doc.addObject("Sketcher::SketchObject", "Sketch012")
body.addObject(sketch13)
sketch13.AttachmentSupport = (doc.XY_Plane, [""])
sketch13.MapMode = "FlatFace"
sketch13.AttachmentOffset = App.Placement(Vector(0, 0, -1.5625 * 25.4), App.Rotation())
sketch13.addGeometry(Part.Circle(Vector(-37.9095, -2.667, 0), Vector(0, 0, 1), 1.778), False)
sketch13.addConstraint(Sketcher.Constraint("Diameter", 0, Q("0.14 in")))
sketch13.addConstraint(Sketcher.Constraint("DistanceY", 0, 3, -1, 1, Q("0.105 in")))
sketch13.addConstraint(Sketcher.Constraint("DistanceX", 0, 3, -1, 1, Q("1.4925 in")))
pocket2 = doc.addObject("PartDesign::Pocket", "Pocket001")
body.addObject(pocket2)
pocket2.Profile = sketch13
pocket2.Length = Q("0.5 in")
pocket2.Reversed = True

sketch14 = doc.addObject("Sketcher::SketchObject", "Sketch013")
body.addObject(sketch14)
sketch14.AttachmentSupport = (doc.XZ_Plane, [""])
sketch14.MapMode = "FlatFace"
sketch14.AttachmentOffset = App.Placement(Vector(0, 0, -0.06 * 25.4), App.Rotation())
sketch14.addGeometry(Part.LineSegment(Vector(-22.733, -22.1615, 0), Vector(-22.733, 0.9525, 0)), False)
sketch14.addGeometry(Part.LineSegment(Vector(-22.733, 0.9525, 0), Vector(17.907, 0.9525, 0)), False)
sketch14.addGeometry(Part.LineSegment(Vector(17.907, 0.9525, 0), Vector(17.907, -22.1615, 0)), False)
sketch14.addGeometry(Part.LineSegment(Vector(17.907, -22.1615, 0), Vector(-22.733, -22.1615, 0)), False)
sketch14.addConstraint(Sketcher.Constraint("Coincident", 0, 2, 1, 1))
sketch14.addConstraint(Sketcher.Constraint("Coincident", 1, 2, 2, 1))
sketch14.addConstraint(Sketcher.Constraint("Coincident", 2, 2, 3, 1))
sketch14.addConstraint(Sketcher.Constraint("Coincident", 3, 2, 0, 1))
sketch14.addConstraint(Sketcher.Constraint("Vertical", 0))
sketch14.addConstraint(Sketcher.Constraint("Horizontal", 1))
sketch14.addConstraint(Sketcher.Constraint("Vertical", 2))
sketch14.addConstraint(Sketcher.Constraint("Horizontal", 3))
sketch14.addConstraint(Sketcher.Constraint("DistanceX", 1, 1, 1, 2, Q("1.6 in")))
sketch14.addConstraint(Sketcher.Constraint("DistanceY", 0, 1, 0, 2, Q("0.91 in")))
sketch14.addConstraint(Sketcher.Constraint("DistanceX", 0, 2, -1, 1, Q("0.895 in")))
sketch14.addConstraint(Sketcher.Constraint("DistanceY", -1, 1, 0, 2, Q("0.0375 in")))
pad10 = doc.addObject("PartDesign::Pad", "Pad009")
body.addObject(pad10)
pad10.Profile = sketch14
pad10.Length = Q("0.17 in")
pad10.Reversed = True

sketch15 = doc.addObject("Sketcher::SketchObject", "Sketch014")
body.addObject(sketch15)
sketch15.AttachmentSupport = (doc.XZ_Plane, [""])
sketch15.MapMode = "FlatFace"
sketch15.AttachmentOffset = App.Placement(Vector(0, 0, -0.23 * 25.4), App.Rotation())
sketch15.addGeometry(Part.LineSegment(Vector(-22.733, -16.9545, 0), Vector(-22.733, -4.2545, 0)), False)
sketch15.addGeometry(Part.LineSegment(Vector(-22.733, -4.2545, 0), Vector(17.907, -4.2545, 0)), False)
sketch15.addGeometry(Part.LineSegment(Vector(17.907, -4.2545, 0), Vector(17.907, -16.9545, 0)), False)
sketch15.addGeometry(Part.LineSegment(Vector(17.907, -16.9545, 0), Vector(-22.733, -16.9545, 0)), False)
sketch15.addConstraint(Sketcher.Constraint("Coincident", 0, 2, 1, 1))
sketch15.addConstraint(Sketcher.Constraint("Coincident", 1, 2, 2, 1))
sketch15.addConstraint(Sketcher.Constraint("Coincident", 2, 2, 3, 1))
sketch15.addConstraint(Sketcher.Constraint("Coincident", 3, 2, 0, 1))
sketch15.addConstraint(Sketcher.Constraint("Vertical", 0))
sketch15.addConstraint(Sketcher.Constraint("Horizontal", 1))
sketch15.addConstraint(Sketcher.Constraint("Vertical", 2))
sketch15.addConstraint(Sketcher.Constraint("Horizontal", 3))
sketch15.addConstraint(Sketcher.Constraint("DistanceX", 1, 1, 1, 2, Q("1.6 in")))
sketch15.addConstraint(Sketcher.Constraint("DistanceY", 0, 1, 0, 2, Q("0.5 in")))
sketch15.addConstraint(Sketcher.Constraint("DistanceX", 0, 2, -1, 1, Q("0.895 in")))
sketch15.addConstraint(Sketcher.Constraint("DistanceY", 0, 2, -1, 1, Q("0.1675 in")))
pad11 = doc.addObject("PartDesign::Pad", "Pad010")
body.addObject(pad11)
pad11.Profile = sketch15
pad11.Length = Q("0.28 in")
pad11.Reversed = True

sketch16 = doc.addObject("Sketcher::SketchObject", "Sketch015")
body.addObject(sketch16)
sketch16.AttachmentSupport = (doc.XZ_Plane, [""])
sketch16.MapMode = "FlatFace"
sketch16.addGeometry(Part.LineSegment(Vector(-15.367, 35.8775, 0), Vector(-15.367, 33.4675, 0)), False)
sketch16.addGeometry(Part.LineSegment(Vector(-15.367, 33.4675, 0), Vector(17.653, 33.4675, 0)), False)
sketch16.addGeometry(Part.LineSegment(Vector(17.653, 33.4675, 0), Vector(17.653, 35.8775, 0)), False)
sketch16.addGeometry(Part.LineSegment(Vector(17.653, 35.8775, 0), Vector(-15.367, 35.8775, 0)), False)
sketch16.addConstraint(Sketcher.Constraint("Coincident", 0, 2, 1, 1))
sketch16.addConstraint(Sketcher.Constraint("Coincident", 1, 2, 2, 1))
sketch16.addConstraint(Sketcher.Constraint("Coincident", 2, 2, 3, 1))
sketch16.addConstraint(Sketcher.Constraint("Coincident", 3, 2, 0, 1))
sketch16.addConstraint(Sketcher.Constraint("Vertical", 0))
sketch16.addConstraint(Sketcher.Constraint("Horizontal", 1))
sketch16.addConstraint(Sketcher.Constraint("Vertical", 2))
sketch16.addConstraint(Sketcher.Constraint("Horizontal", 3))
sketch16.addConstraint(Sketcher.Constraint("DistanceX", 1, 1, 1, 2, Q("1.3 in")))
sketch16.addConstraint(Sketcher.Constraint("DistanceX", 0, 2, -1, 1, Q("0.605 in")))
sketch16.addConstraint(Sketcher.Constraint("DistanceY", 0, 2, 0, 1, Q("2.41 mm")))
sketch16.addConstraint(Sketcher.Constraint("DistanceY", -1, 1, 2, 2, Q("1.4125 in")))
pad12 = doc.addObject("PartDesign::Pad", "Pad011")
body.addObject(pad12)
pad12.Profile = sketch16
pad12.Length = Q("0.1 in")

sketch17 = doc.addObject("Sketcher::SketchObject", "Sketch016")
body.addObject(sketch17)
sketch17.AttachmentSupport = (doc.XZ_Plane, [""])
sketch17.MapMode = "FlatFace"
sketch17.addGeometry(Part.LineSegment(Vector(-5.461, -35.1155, 0), Vector(-5.461, -39.6875, 0)), False)
sketch17.addGeometry(Part.LineSegment(Vector(-5.461, -39.6875, 0), Vector(3.429, -39.6875, 0)), False)
sketch17.addGeometry(Part.LineSegment(Vector(3.429, -39.6875, 0), Vector(3.429, -35.1155, 0)), False)
sketch17.addGeometry(Part.LineSegment(Vector(3.429, -35.1155, 0), Vector(-5.461, -35.1155, 0)), False)
sketch17.addConstraint(Sketcher.Constraint("Coincident", 0, 2, 1, 1))
sketch17.addConstraint(Sketcher.Constraint("Coincident", 1, 2, 2, 1))
sketch17.addConstraint(Sketcher.Constraint("Coincident", 2, 2, 3, 1))
sketch17.addConstraint(Sketcher.Constraint("Coincident", 3, 2, 0, 1))
sketch17.addConstraint(Sketcher.Constraint("Vertical", 0))
sketch17.addConstraint(Sketcher.Constraint("Horizontal", 1))
sketch17.addConstraint(Sketcher.Constraint("Vertical", 2))
sketch17.addConstraint(Sketcher.Constraint("Horizontal", 3))
sketch17.addConstraint(Sketcher.Constraint("DistanceX", 1, 1, 1, 2, Q("0.35 in")))
sketch17.addConstraint(Sketcher.Constraint("DistanceY", 0, 2, 0, 1, Q("0.18 in")))
sketch17.addConstraint(Sketcher.Constraint("DistanceX", 0, 2, -1, 1, Q("0.215 in")))
sketch17.addConstraint(Sketcher.Constraint("DistanceY", 0, 2, -1, 1, Q("1.5625 in")))
pad13 = doc.addObject("PartDesign::Pad", "Pad012")
body.addObject(pad13)
pad13.Profile = sketch17
pad13.Length = Q("0.19 in")

sketch18 = doc.addObject("Sketcher::SketchObject", "Sketch017")
body.addObject(sketch18)
sketch18.AttachmentSupport = (doc.XY_Plane, [""])
sketch18.MapMode = "FlatFace"
sketch18.AttachmentOffset = App.Placement(Vector(0, 0, -1.5625 * 25.4), App.Rotation())
sketch18.addGeometry(Part.LineSegment(Vector(3.429, -1.397, 0), Vector(3.429, -3.429, 0)), False)
sketch18.addGeometry(Part.LineSegment(Vector(3.429, -3.429, 0), Vector(-5.461, -3.429, 0)), False)
sketch18.addGeometry(Part.LineSegment(Vector(-5.461, -3.429, 0), Vector(-5.461, -1.397, 0)), False)
sketch18.addGeometry(Part.LineSegment(Vector(-5.461, -1.397, 0), Vector(3.429, -1.397, 0)), False)
sketch18.addConstraint(Sketcher.Constraint("Coincident", 0, 2, 1, 1))
sketch18.addConstraint(Sketcher.Constraint("Coincident", 1, 2, 2, 1))
sketch18.addConstraint(Sketcher.Constraint("Coincident", 2, 2, 3, 1))
sketch18.addConstraint(Sketcher.Constraint("Coincident", 3, 2, 0, 1))
sketch18.addConstraint(Sketcher.Constraint("Vertical", 0))
sketch18.addConstraint(Sketcher.Constraint("Horizontal", 1))
sketch18.addConstraint(Sketcher.Constraint("Vertical", 2))
sketch18.addConstraint(Sketcher.Constraint("Horizontal", 3))
sketch18.addConstraint(Sketcher.Constraint("DistanceX", 1, 2, 1, 1, Q("0.35 in")))
sketch18.addConstraint(Sketcher.Constraint("DistanceY", 0, 2, 0, 1, Q("0.08 in")))
sketch18.addConstraint(Sketcher.Constraint("DistanceX", -1, 1, 0, 2, Q("0.135 in")))
sketch18.addConstraint(Sketcher.Constraint("DistanceY", 0, 2, -1, 1, Q("0.135 in")))
pad14 = doc.addObject("PartDesign::Pad", "Pad013")
body.addObject(pad14)
pad14.Profile = sketch18
pad14.Length = Q("0.06 in")
pad14.Reversed = True

doc.recompute()
